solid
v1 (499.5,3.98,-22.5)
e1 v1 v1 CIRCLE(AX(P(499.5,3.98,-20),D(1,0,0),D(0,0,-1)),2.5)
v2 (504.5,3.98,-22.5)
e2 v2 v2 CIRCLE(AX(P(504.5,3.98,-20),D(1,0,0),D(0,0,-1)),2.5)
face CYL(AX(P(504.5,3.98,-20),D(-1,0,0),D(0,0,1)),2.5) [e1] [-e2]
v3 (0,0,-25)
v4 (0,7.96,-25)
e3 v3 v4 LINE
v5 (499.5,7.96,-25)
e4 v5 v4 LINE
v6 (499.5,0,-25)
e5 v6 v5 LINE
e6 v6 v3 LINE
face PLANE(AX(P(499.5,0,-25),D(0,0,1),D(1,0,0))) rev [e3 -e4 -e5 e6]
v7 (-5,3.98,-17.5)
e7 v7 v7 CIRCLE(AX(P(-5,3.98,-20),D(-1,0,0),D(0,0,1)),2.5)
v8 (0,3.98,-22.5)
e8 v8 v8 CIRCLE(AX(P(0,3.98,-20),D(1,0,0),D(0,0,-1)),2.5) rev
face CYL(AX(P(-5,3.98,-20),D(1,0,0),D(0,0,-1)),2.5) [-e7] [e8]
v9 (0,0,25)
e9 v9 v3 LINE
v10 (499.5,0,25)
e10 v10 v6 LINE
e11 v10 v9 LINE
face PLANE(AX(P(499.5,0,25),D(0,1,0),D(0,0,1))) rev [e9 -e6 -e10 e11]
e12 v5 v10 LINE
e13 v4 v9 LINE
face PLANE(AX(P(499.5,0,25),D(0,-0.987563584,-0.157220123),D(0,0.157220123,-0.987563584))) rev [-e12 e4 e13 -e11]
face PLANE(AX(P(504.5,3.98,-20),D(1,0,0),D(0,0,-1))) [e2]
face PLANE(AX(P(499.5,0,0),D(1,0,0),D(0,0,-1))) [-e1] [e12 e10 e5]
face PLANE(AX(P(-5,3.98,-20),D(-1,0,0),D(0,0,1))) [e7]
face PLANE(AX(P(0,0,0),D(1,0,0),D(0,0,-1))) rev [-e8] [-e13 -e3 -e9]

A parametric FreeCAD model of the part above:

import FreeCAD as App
import Part
import Sketcher

V = App.Vector
Q = App.Units.Quantity

doc = App.newDocument("Part")
body = doc.addObject("PartDesign::Body", "Body")

# Sketch on YZ plane
sketch1 = body.newObject("Sketcher::SketchObject", "Sketch")
sketch1.AttachmentSupport = (doc.getObject("YZ_Plane"), [""])
sketch1.MapMode = "FlatFace"
sketch1.addGeometry([
    Part.LineSegment(V(0, 25, 0), V(0, -25, 0)),
    Part.LineSegment(V(0, -25, 0), V(8, -25, 0)),
    Part.LineSegment(V(8, -25, 0), V(0, 25, 0)),
], False)
sketch1.addConstraint([
    Sketcher.Constraint("Coincident", 0, 2, 1, 1),
    Sketcher.Constraint("Coincident", 1, 2, 2, 1),
    Sketcher.Constraint("Coincident", 2, 2, 0, 1),
    Sketcher.Constraint("Vertical", 0),
    Sketcher.Constraint("Horizontal", 1),
    Sketcher.Constraint("Symmetric", 0, 2, 2, 2, -1, 1),
    Sketcher.Constraint("DistanceY", 0, 2, 0, 1, Q("50 mm")),
    Sketcher.Constraint("DistanceX", 1, 1, 1, 2, Q("7.96 mm")),
])
pad1 = body.newObject("PartDesign::Pad", "Pad")
pad1.Profile = sketch1
pad1.Length = 499.5

# Sketch on YZ plane
sketch2 = body.newObject("Sketcher::SketchObject", "Sketch001")
sketch2.AttachmentSupport = (doc.getObject("YZ_Plane"), [""])
sketch2.MapMode = "FlatFace"
sketch2.AttachmentOffset = App.Placement(V(0, 0, 499.5), App.Rotation())
sketch2.addGeometry(Part.Circle(V(4, -20, 0), V(0, 0, 1), 2.5), False)
sketch2.addConstraint([
    Sketcher.Constraint("Diameter", 0, Q("5 mm")),
    Sketcher.Constraint("DistanceY", 0, 3, -1, 1, Q("20 mm")),
    Sketcher.Constraint("DistanceX", -1, 1, 0, 3, Q("3.98 mm")),
])
pad2 = body.newObject("PartDesign::Pad", "Pad001")
pad2.Profile = sketch2
pad2.Length = 5

# Sketch on YZ plane
sketch3 = body.newObject("Sketcher::SketchObject", "Sketch002")
sketch3.AttachmentSupport = (doc.getObject("YZ_Plane"), [""])
sketch3.MapMode = "FlatFace"
sketch3.addGeometry(Part.Circle(V(4, -20, 0), V(0, 0, 1), 2.5), False)
sketch3.addConstraint([
    Sketcher.Constraint("Diameter", 0, Q("5 mm")),
    Sketcher.Constraint("DistanceY", 0, 3, -1, 1, Q("20 mm")),
    Sketcher.Constraint("DistanceX", -1, 1, 0, 3, Q("3.98 mm")),
])
pad3 = body.newObject("PartDesign::Pad", "Pad002")
pad3.Profile = sketch3
pad3.Length = 5
pad3.Reversed = True

doc.recompute()
